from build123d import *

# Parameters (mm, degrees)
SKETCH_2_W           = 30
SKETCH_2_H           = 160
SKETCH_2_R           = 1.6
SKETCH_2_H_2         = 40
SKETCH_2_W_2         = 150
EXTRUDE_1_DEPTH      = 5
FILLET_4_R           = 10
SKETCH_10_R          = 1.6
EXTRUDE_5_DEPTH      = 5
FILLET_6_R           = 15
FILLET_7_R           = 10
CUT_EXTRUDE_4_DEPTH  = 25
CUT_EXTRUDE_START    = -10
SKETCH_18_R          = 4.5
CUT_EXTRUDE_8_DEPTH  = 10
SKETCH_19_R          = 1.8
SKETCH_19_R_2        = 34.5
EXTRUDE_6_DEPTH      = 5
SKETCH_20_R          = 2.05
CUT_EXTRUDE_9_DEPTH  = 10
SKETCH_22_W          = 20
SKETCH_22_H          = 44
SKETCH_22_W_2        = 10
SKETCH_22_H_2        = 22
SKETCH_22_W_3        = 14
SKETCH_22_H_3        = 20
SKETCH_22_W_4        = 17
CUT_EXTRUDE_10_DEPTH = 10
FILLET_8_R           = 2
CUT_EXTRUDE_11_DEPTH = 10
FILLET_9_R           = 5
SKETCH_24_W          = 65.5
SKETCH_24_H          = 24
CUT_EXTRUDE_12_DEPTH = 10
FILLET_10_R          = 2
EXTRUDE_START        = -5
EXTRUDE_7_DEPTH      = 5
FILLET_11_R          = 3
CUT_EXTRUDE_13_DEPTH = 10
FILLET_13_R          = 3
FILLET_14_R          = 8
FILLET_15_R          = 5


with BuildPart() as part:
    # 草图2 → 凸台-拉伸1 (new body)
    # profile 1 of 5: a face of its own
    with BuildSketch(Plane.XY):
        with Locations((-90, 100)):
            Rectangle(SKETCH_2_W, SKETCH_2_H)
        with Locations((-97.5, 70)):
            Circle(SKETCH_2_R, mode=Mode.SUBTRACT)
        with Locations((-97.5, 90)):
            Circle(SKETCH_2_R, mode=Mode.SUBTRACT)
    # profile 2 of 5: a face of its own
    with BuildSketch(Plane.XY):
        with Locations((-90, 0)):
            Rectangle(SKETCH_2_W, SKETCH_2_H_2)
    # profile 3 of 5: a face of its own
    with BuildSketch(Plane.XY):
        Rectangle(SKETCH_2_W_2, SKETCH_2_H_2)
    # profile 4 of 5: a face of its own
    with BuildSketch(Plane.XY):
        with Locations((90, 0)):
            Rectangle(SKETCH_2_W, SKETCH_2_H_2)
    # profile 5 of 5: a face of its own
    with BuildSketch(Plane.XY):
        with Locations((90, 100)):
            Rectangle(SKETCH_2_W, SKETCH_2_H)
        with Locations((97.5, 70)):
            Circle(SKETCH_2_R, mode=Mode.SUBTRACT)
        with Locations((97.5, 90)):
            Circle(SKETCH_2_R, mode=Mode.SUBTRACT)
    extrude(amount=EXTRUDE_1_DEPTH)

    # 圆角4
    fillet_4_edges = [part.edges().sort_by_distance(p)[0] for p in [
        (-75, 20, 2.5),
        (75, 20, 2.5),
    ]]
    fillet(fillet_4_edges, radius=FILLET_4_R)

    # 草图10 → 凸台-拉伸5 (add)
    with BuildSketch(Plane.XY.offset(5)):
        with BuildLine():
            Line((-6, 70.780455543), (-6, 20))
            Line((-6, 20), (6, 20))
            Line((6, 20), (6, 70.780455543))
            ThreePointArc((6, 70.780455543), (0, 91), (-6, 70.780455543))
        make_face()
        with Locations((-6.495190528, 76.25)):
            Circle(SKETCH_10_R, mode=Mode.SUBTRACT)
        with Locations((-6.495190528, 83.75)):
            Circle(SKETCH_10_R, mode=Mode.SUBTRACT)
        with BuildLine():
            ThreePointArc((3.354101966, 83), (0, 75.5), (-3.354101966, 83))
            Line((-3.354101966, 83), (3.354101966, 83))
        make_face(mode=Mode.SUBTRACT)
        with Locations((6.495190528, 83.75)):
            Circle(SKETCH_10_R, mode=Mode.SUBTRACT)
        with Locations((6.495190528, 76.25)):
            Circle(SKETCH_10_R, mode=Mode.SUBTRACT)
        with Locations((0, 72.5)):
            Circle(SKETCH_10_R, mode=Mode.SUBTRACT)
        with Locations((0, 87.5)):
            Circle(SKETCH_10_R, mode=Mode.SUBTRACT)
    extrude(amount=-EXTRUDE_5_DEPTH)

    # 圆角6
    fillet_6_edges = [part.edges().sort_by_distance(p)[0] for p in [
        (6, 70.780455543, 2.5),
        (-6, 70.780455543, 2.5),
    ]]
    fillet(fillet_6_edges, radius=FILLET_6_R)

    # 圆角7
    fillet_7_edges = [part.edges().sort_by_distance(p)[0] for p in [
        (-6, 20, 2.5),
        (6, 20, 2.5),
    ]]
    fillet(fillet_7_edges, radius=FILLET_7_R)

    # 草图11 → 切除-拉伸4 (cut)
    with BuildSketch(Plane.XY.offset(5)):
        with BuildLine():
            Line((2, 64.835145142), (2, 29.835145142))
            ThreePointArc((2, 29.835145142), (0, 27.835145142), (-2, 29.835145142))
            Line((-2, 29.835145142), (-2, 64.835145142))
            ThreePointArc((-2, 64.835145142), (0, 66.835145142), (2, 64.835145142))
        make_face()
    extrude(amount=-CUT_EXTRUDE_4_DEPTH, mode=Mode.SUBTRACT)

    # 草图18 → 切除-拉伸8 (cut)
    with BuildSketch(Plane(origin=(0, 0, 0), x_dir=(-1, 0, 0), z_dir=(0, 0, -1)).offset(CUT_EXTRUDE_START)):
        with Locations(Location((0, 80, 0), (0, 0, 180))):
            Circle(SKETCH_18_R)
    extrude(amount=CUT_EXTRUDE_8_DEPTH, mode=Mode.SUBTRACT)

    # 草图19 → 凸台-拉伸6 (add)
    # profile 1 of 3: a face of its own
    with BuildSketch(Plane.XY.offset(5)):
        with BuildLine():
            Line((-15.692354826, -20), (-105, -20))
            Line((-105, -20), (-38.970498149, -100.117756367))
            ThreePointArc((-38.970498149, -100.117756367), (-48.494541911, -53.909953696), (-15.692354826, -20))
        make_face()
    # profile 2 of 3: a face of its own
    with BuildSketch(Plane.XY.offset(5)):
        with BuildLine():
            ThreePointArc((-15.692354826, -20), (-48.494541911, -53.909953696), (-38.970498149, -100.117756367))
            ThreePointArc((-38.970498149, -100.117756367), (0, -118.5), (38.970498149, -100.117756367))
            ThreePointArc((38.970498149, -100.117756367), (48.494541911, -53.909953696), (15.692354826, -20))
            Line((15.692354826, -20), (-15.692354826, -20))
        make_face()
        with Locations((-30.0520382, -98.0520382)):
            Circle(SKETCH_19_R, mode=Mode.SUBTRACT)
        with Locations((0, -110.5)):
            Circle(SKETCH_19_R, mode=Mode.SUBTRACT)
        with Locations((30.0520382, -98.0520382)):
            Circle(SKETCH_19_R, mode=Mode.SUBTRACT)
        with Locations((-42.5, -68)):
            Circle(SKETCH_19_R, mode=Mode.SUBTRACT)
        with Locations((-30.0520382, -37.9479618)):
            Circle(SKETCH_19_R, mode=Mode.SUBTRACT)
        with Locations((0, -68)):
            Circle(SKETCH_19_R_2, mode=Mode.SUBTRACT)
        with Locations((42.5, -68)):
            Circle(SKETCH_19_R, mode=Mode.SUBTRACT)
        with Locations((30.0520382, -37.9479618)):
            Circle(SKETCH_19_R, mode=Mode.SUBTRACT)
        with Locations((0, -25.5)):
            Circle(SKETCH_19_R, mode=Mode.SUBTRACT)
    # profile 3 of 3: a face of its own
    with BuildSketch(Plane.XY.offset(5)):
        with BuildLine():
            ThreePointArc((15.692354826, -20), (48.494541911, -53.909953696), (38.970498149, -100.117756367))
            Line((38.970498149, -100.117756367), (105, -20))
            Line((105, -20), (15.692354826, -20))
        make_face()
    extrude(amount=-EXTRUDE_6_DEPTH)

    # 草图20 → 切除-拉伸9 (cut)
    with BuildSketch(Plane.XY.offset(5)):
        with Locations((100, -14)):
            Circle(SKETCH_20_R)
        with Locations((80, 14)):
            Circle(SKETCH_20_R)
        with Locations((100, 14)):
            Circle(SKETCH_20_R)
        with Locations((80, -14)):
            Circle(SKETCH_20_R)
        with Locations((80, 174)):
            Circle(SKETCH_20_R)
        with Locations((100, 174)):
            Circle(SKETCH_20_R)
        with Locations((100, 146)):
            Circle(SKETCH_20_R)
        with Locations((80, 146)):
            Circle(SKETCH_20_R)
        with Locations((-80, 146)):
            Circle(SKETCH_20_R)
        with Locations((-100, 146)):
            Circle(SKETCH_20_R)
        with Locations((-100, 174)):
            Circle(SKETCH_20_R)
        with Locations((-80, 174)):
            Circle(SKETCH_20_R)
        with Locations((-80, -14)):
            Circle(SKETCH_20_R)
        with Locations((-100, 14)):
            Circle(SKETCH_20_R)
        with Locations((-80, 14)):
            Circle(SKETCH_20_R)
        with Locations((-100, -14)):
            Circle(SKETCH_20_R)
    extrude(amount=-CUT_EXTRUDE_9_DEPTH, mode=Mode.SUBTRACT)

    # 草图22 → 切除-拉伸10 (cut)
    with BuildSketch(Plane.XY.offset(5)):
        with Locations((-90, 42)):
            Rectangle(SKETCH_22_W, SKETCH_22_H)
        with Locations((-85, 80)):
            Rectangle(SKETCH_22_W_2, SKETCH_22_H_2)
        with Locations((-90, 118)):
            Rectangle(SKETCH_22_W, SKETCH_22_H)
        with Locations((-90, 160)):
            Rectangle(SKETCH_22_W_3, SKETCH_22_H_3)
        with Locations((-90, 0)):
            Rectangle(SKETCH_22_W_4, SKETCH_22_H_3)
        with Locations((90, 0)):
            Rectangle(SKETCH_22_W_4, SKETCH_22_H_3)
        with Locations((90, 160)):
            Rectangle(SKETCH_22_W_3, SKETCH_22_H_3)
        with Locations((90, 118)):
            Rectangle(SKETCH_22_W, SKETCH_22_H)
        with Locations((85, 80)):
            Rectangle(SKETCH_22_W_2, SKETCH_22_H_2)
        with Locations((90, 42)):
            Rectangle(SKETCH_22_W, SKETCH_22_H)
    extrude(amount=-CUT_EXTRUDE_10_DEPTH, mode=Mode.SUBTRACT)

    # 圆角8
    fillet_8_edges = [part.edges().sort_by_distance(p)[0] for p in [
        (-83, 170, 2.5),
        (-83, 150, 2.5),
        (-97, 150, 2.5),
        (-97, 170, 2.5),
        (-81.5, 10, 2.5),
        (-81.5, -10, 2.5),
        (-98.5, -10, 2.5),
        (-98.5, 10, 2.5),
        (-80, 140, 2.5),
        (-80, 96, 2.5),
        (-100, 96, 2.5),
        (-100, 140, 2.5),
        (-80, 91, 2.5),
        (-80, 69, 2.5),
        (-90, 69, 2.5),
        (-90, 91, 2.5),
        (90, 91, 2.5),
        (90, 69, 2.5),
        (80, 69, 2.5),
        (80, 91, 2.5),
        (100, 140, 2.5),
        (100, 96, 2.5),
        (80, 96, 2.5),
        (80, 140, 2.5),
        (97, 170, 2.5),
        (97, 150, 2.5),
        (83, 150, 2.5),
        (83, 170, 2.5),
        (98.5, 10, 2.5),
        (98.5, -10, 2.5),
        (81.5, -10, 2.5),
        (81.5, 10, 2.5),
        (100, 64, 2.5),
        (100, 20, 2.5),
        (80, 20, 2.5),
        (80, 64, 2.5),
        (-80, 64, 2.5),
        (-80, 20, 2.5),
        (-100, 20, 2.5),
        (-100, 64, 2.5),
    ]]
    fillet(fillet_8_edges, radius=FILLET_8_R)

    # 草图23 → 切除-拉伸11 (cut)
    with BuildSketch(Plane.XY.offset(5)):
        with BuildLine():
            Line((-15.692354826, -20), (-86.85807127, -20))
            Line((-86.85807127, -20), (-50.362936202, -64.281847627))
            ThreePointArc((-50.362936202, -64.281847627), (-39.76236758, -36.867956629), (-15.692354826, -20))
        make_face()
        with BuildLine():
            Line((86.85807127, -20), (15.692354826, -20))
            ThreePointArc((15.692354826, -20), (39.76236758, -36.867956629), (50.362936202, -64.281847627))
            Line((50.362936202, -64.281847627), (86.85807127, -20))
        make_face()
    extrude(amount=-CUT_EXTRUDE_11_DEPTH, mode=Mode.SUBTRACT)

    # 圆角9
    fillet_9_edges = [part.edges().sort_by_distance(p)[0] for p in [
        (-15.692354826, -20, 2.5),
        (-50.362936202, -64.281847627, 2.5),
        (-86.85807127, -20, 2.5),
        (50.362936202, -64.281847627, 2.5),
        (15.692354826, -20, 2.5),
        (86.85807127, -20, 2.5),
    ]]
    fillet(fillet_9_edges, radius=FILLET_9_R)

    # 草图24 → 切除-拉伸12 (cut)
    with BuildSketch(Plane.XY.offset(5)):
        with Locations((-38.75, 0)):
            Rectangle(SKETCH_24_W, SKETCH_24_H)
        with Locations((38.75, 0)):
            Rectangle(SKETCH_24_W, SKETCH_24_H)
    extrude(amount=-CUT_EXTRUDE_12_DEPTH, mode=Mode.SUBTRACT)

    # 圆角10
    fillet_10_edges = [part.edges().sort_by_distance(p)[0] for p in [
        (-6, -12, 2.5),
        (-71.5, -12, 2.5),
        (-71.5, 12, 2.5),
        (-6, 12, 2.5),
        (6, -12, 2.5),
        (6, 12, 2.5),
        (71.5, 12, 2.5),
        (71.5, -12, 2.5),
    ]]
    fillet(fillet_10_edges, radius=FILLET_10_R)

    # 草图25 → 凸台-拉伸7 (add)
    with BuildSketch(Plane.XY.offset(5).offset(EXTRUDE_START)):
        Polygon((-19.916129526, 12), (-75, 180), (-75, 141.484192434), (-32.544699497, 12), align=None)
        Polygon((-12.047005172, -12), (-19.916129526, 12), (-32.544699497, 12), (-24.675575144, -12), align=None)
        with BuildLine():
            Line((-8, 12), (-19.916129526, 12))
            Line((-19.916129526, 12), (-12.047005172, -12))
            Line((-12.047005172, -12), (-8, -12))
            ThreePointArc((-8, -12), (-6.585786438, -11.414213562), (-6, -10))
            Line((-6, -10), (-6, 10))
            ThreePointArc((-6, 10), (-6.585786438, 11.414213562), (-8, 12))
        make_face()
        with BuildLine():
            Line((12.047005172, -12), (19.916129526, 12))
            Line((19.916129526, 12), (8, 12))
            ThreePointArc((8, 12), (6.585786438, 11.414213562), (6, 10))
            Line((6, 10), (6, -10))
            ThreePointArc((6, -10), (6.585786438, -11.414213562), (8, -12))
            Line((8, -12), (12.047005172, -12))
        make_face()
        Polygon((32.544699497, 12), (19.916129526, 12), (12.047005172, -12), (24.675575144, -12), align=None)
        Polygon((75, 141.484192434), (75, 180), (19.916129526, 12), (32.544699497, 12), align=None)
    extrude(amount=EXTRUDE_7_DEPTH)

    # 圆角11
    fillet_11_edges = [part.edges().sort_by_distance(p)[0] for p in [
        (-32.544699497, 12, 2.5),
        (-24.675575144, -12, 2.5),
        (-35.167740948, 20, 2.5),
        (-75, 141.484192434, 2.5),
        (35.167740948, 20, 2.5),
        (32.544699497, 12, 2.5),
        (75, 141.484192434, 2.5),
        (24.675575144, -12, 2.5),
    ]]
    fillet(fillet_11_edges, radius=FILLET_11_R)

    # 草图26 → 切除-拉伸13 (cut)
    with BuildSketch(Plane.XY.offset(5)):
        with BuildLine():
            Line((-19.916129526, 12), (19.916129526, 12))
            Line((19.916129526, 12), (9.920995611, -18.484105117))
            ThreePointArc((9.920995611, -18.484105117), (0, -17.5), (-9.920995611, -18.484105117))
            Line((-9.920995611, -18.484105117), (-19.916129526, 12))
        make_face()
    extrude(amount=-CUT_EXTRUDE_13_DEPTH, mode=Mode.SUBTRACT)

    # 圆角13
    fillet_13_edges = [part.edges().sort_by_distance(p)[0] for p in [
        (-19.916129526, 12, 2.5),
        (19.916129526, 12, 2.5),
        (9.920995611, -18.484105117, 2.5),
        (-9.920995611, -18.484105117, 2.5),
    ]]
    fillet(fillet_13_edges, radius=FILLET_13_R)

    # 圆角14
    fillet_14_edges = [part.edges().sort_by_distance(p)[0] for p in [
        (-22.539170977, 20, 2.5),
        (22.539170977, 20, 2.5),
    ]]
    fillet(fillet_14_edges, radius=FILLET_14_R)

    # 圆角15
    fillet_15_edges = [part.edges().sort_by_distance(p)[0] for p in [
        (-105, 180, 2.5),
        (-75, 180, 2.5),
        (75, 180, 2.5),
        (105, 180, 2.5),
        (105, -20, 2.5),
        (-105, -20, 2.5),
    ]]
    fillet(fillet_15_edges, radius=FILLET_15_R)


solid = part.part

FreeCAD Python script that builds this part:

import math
import FreeCAD as App
import Part
import Sketcher
from FreeCAD import Vector
Q = App.Units.Quantity


def edges_at(feature, points):
    """Names of the edges that pass closest to the given points."""
    edges = feature.Shape.Edges
    near = lambda p: min(range(len(edges)), key=lambda i: edges[i].distToShape(Part.Vertex(*p))[0])
    return sorted({f"Edge{near(p) + 1}" for p in points})


def add_polygon(sketch, points):
    """Adds a closed chain of lines whose ends are joined by coincident constraints."""
    first, n = sketch.GeometryCount, len(points)
    for a, b in zip(points, points[1:] + points[:1]):
        sketch.addGeometry(Part.LineSegment(App.Vector(*a, 0), App.Vector(*b, 0)), False)
    for i in range(n):
        sketch.addConstraint(Sketcher.Constraint("Coincident", first + i, 2, first + (i + 1) % n, 1))

doc = App.newDocument("Part")
body = doc.addObject("PartDesign::Body", "Body")

# Sketch on XY plane
sketch1 = body.newObject("Sketcher::SketchObject", "Sketch")
sketch1.AttachmentSupport = (doc.getObject("XY_Plane"), [""])
sketch1.MapMode = "FlatFace"
add_polygon(sketch1, [(-105, 180), (-105, -20), (105, -20), (105, 180), (75, 180), (75, 20), (-75, 20), (-75, 180)])  # lines 0-7
sketch1.addGeometry(Part.Circle(Vector(-97.5, 70, 0), Vector(0, 0, 1), 1.6), False)  # 8
sketch1.addGeometry(Part.Circle(Vector(-97.5, 90, 0), Vector(0, 0, 1), 1.6), False)  # 9
sketch1.addGeometry(Part.Circle(Vector(97.5, 90, 0), Vector(0, 0, 1), 1.6), False)  # 10
sketch1.addGeometry(Part.Circle(Vector(97.5, 70, 0), Vector(0, 0, 1), 1.6), False)  # 11
sketch1.addConstraint([
    Sketcher.Constraint("Vertical", 0),
    Sketcher.Constraint("Horizontal", 1),
    Sketcher.Constraint("Vertical", 2),
    Sketcher.Constraint("Horizontal", 3),
    Sketcher.Constraint("Vertical", 4),
    Sketcher.Constraint("Horizontal", 5),
    Sketcher.Constraint("Vertical", 6),
    Sketcher.Constraint("Horizontal", 7),
    Sketcher.Constraint("Equal", 8, 9),
    Sketcher.Constraint("Equal", 9, 10),
    Sketcher.Constraint("Equal", 10, 11),
    Sketcher.Constraint("Symmetric", 9, 3, 10, 3, -2),
    Sketcher.Constraint("Symmetric", 8, 3, 11, 3, -2),
    Sketcher.Constraint("Symmetric", 3, 2, 6, 2, -2),
    Sketcher.Constraint("Vertical", 8, 3, 9, 3),
    Sketcher.Constraint("Equal", 3, 7),
    Sketcher.Constraint("Diameter", 8, Q("3.2 mm")),
    Sketcher.Constraint("DistanceX", 1, 1, 1, 2, Q("210 mm")),
    Sketcher.Constraint("DistanceX", 3, 2, 3, 1, Q("30 mm")),
    Sketcher.Constraint("DistanceY", 0, 2, 0, 1, Q("200 mm")),
    Sketcher.Constraint("DistanceY", 4, 2, 4, 1, Q("160 mm")),
    Sketcher.Constraint("DistanceY", -1, 1, 8, 3, Q("70 mm")),
    Sketcher.Constraint("DistanceY", -1, 1, 9, 3, Q("90 mm")),
    Sketcher.Constraint("DistanceY", 0, 2, -1, 1, Q("20 mm")),
    Sketcher.Constraint("DistanceX", 9, 3, 10, 3, Q("195 mm")),
])
pad1 = body.newObject("PartDesign::Pad", "Pad")
pad1.Profile = sketch1
pad1.Length = 5
doc.recompute()

fillet = body.newObject("PartDesign::Fillet", "Fillet")
fillet.Base = (pad1, edges_at(pad1, [(-75, 20, 2.5), (75, 20, 2.5)]))
fillet.Radius = 10

# Sketch on XY plane
sketch2 = body.newObject("Sketcher::SketchObject", "Sketch001")
sketch2.AttachmentSupport = (doc.getObject("XY_Plane"), [""])
sketch2.MapMode = "FlatFace"
sketch2.AttachmentOffset = App.Placement(Vector(0, 0, 5), App.Rotation())
sketch2.addGeometry([
    Part.LineSegment(Vector(-6, 70.780456, 0), Vector(-6, 20, 0)),  # 0
    Part.LineSegment(Vector(-6, 20, 0), Vector(6, 20, 0)),  # 1
    Part.LineSegment(Vector(6, 20, 0), Vector(6, 70.780456, 0)),  # 2
    Part.ArcOfCircle(Part.Circle(Vector(0, 80, 0), Vector(0, 0, 1), 11), math.radians(-56.944269), math.radians(236.944269)),  # 3
    Part.Circle(Vector(-6.495191, 76.25, 0), Vector(0, 0, 1), 1.6),  # 4
    Part.Circle(Vector(0, 72.5, 0), Vector(0, 0, 1), 1.6),  # 5
    Part.LineSegment(Vector(-3.354102, 83, 0), Vector(3.354102, 83, 0)),  # 6
    Part.ArcOfCircle(Part.Circle(Vector(0, 80, 0), Vector(0, 0, 1), 4.5), math.radians(138.189685), math.radians(401.810315)),  # 7
    Part.Circle(Vector(6.495191, 76.25, 0), Vector(0, 0, 1), 1.6),  # 8
    Part.Circle(Vector(-6.495191, 83.75, 0), Vector(0, 0, 1), 1.6),  # 9
    Part.Circle(Vector(6.495191, 83.75, 0), Vector(0, 0, 1), 1.6),  # 10
    Part.Circle(Vector(0, 87.5, 0), Vector(0, 0, 1), 1.6),  # 11
], False)
sketch2.addConstraint([
    Sketcher.Constraint("Coincident", 0, 2, 1, 1),
    Sketcher.Constraint("Coincident", 1, 2, 2, 1),
    Sketcher.Constraint("Coincident", 2, 2, 3, 1),
    Sketcher.Constraint("Coincident", 3, 2, 0, 1),
    Sketcher.Constraint("Coincident", 6, 1, 7, 1),
    Sketcher.Constraint("Coincident", 7, 2, 6, 2),
    Sketcher.Constraint("Vertical", 0),
    Sketcher.Constraint("Horizontal", 1),
    Sketcher.Constraint("Vertical", 2),
    Sketcher.Constraint("Horizontal", 6),
    Sketcher.Constraint("Coincident", 7, 3, 3, 3),
    Sketcher.Constraint("Equal", 4, 5),
    Sketcher.Constraint("Equal", 5, 8),
    Sketcher.Constraint("Equal", 8, 9),
    Sketcher.Constraint("Equal", 9, 10),
    Sketcher.Constraint("Equal", 10, 11),
    Sketcher.Constraint("Symmetric", 4, 3, 8, 3, -2),
    Sketcher.Constraint("Symmetric", 9, 3, 10, 3, -2),
    Sketcher.Constraint("Symmetric", 2, 2, 3, 2, -2),
    Sketcher.Constraint("PointOnObject", 5, 3, -2),
    Sketcher.Constraint("PointOnObject", 11, 3, -2),
    Sketcher.Constraint("Vertical", 4, 3, 9, 3),
    Sketcher.Constraint("Radius", 3, Q("11 mm")),
    Sketcher.Constraint("Diameter", 4, Q("3.2 mm")),
    Sketcher.Constraint("Radius", 7, Q("4.5 mm")),
    Sketcher.Constraint("DistanceX", 1, 1, 1, 2, Q("12 mm")),
    Sketcher.Constraint("DistanceY", -1, 1, 3, 3, Q("80 mm")),
    Sketcher.Constraint("DistanceY", -1, 1, 0, 2, Q("20 mm")),
    Sketcher.Constraint("DistanceY", -1, 1, 6, 1, Q("83 mm")),
    Sketcher.Constraint("DistanceY", -1, 1, 5, 3, Q("72.5 mm")),
    Sketcher.Constraint("DistanceY", -1, 1, 11, 3, Q("87.5 mm")),
    Sketcher.Constraint("DistanceY", 4, 3, 9, 3, Q("7.5 mm")),
    Sketcher.Constraint("DistanceY", -1, 1, 4, 3, Q("76.25 mm")),
    Sketcher.Constraint("DistanceX", 4, 3, -1, 1, Q("6.495191 mm")),
])
pad2 = body.newObject("PartDesign::Pad", "Pad001")
pad2.Profile = sketch2
pad2.Length = 5
pad2.Reversed = True
doc.recompute()

fillet2 = body.newObject("PartDesign::Fillet", "Fillet001")
fillet2.Base = (pad2, edges_at(pad2, [(6, 70.78, 2.5), (-6, 70.78, 2.5)]))
fillet2.Radius = 15
doc.recompute()

fillet3 = body.newObject("PartDesign::Fillet", "Fillet002")
fillet3.Base = (fillet2, edges_at(fillet2, [(-6, 20, 2.5), (6, 20, 2.5)]))
fillet3.Radius = 10

# Sketch on XY plane
sketch3 = body.newObject("Sketcher::SketchObject", "Sketch002")
sketch3.AttachmentSupport = (doc.getObject("XY_Plane"), [""])
sketch3.MapMode = "FlatFace"
sketch3.AttachmentOffset = App.Placement(Vector(0, 0, 5), App.Rotation())
sketch3.addGeometry([
    Part.LineSegment(Vector(2, 29.835145, 0), Vector(2, 64.835145, 0)),
    Part.ArcOfCircle(Part.Circle(Vector(0, 64.835145, 0), Vector(0, 0, 1), 2), math.radians(0), math.radians(180)),
    Part.LineSegment(Vector(-2, 64.835145, 0), Vector(-2, 29.835145, 0)),
    Part.ArcOfCircle(Part.Circle(Vector(0, 29.835145, 0), Vector(0, 0, 1), 2), math.radians(180), math.radians(360)),
], False)
sketch3.addConstraint([
    Sketcher.Constraint("Tangent", 0, 2, 1, 1),
    Sketcher.Constraint("Tangent", 1, 2, 2, 1),
    Sketcher.Constraint("Tangent", 2, 2, 3, 1),
    Sketcher.Constraint("Tangent", 3, 2, 0, 1),
    Sketcher.Constraint("Vertical", 0),
    Sketcher.Constraint("Vertical", 2),
    Sketcher.Constraint("PointOnObject", 1, 3, -2),
    Sketcher.Constraint("Radius", 1, Q("2 mm")),
    Sketcher.Constraint("DistanceY", 0, 1, 0, 2, Q("35 mm")),
    Sketcher.Constraint("DistanceY", -1, 1, 1, 3, Q("64.835145 mm")),
])
pocket1 = body.newObject("PartDesign::Pocket", "Pocket")
pocket1.Profile = sketch3
pocket1.Length = 25

# Sketch on XY plane
sketch4 = body.newObject("Sketcher::SketchObject", "Sketch003")
sketch4.AttachmentSupport = (doc.getObject("XY_Plane"), [""])
sketch4.MapMode = "FlatFace"
sketch4.AttachmentOffset = App.Placement(Vector(0, 0, 10), App.Rotation())
sketch4.addGeometry(Part.Circle(Vector(0, 80, 0), Vector(0, 0, 1), 4.5), False)
sketch4.addConstraint([
    Sketcher.Constraint("PointOnObject", 0, 3, -2),
    Sketcher.Constraint("Diameter", 0, Q("9 mm")),
    Sketcher.Constraint("DistanceY", -1, 1, 0, 3, Q("80 mm")),
])
pocket2 = body.newObject("PartDesign::Pocket", "Pocket001")
pocket2.Profile = sketch4
pocket2.Length = 10

# Sketch on XY plane
sketch5 = body.newObject("Sketcher::SketchObject", "Sketch004")
sketch5.AttachmentSupport = (doc.getObject("XY_Plane"), [""])
sketch5.MapMode = "FlatFace"
sketch5.AttachmentOffset = App.Placement(Vector(0, 0, 5), App.Rotation())
sketch5.addGeometry([
    Part.LineSegment(Vector(-105, -20, 0), Vector(-38.970498, -100.117756, 0)),  # 0
    Part.ArcOfCircle(Part.Circle(Vector(0, -68, 0), Vector(0, 0, 1), 50.5), math.radians(-140.506166), math.radians(-39.493834)),  # 1
    Part.LineSegment(Vector(38.970498, -100.117756, 0), Vector(105, -20, 0)),  # 2
    Part.LineSegment(Vector(105, -20, 0), Vector(-105, -20, 0)),  # 3
    Part.Circle(Vector(30.052038, -37.947962, 0), Vector(0, 0, 1), 1.8),  # 4
    Part.Circle(Vector(-30.052038, -98.052038, 0), Vector(0, 0, 1), 1.8),  # 5
    Part.Circle(Vector(0, -110.5, 0), Vector(0, 0, 1), 1.8),  # 6
    Part.Circle(Vector(30.052038, -98.052038, 0), Vector(0, 0, 1), 1.8),  # 7
    Part.Circle(Vector(-42.5, -68, 0), Vector(0, 0, 1), 1.8),  # 8
    Part.Circle(Vector(-30.052038, -37.947962, 0), Vector(0, 0, 1), 1.8),  # 9
    Part.Circle(Vector(0, -68, 0), Vector(0, 0, 1), 34.5),  # 10
    Part.Circle(Vector(42.5, -68, 0), Vector(0, 0, 1), 1.8),  # 11
    Part.Circle(Vector(0, -25.5, 0), Vector(0, 0, 1), 1.8),  # 12
], False)
sketch5.addConstraint([
    Sketcher.Constraint("Tangent", 0, 2, 1, 1),
    Sketcher.Constraint("Tangent", 1, 2, 2, 1),
    Sketcher.Constraint("Coincident", 2, 2, 3, 1),
    Sketcher.Constraint("Coincident", 3, 2, 0, 1),
    Sketcher.Constraint("Horizontal", 3),
    Sketcher.Constraint("Coincident", 10, 3, 1, 3),
    Sketcher.Constraint("Equal", 4, 5),
    Sketcher.Constraint("Equal", 5, 6),
    Sketcher.Constraint("Equal", 6, 7),
    Sketcher.Constraint("Equal", 7, 8),
    Sketcher.Constraint("Equal", 8, 9),
    Sketcher.Constraint("Equal", 9, 11),
    Sketcher.Constraint("Equal", 11, 12),
    Sketcher.Constraint("Symmetric", 5, 3, 7, 3, -2),
    Sketcher.Constraint("Symmetric", 4, 3, 9, 3, -2),
    Sketcher.Constraint("Symmetric", 8, 3, 11, 3, -2),
    Sketcher.Constraint("Symmetric", 0, 2, 1, 2, -2),
    Sketcher.Constraint("PointOnObject", 6, 3, -2),
    Sketcher.Constraint("PointOnObject", 12, 3, -2),
    Sketcher.Constraint("Horizontal", 1, 3, 8, 3),
    Sketcher.Constraint("Vertical", 4, 3, 7, 3),
    Sketcher.Constraint("Diameter", 10, Q("69 mm")),
    Sketcher.Constraint("Diameter", 4, Q("3.6 mm")),
    Sketcher.Constraint("Radius", 1, Q("50.5 mm")),
    Sketcher.Constraint("DistanceX", 3, 2, 3, 1, Q("210 mm")),
    Sketcher.Constraint("DistanceY", 1, 3, -1, 1, Q("68 mm")),
    Sketcher.Constraint("DistanceY", 2, 2, -1, 1, Q("20 mm")),
    Sketcher.Constraint("DistanceY", 6, 3, -1, 1, Q("110.5 mm")),
    Sketcher.Constraint("DistanceX", 8, 3, -1, 1, Q("42.5 mm")),
    Sketcher.Constraint("DistanceY", 12, 3, -1, 1, Q("25.5 mm")),
    Sketcher.Constraint("DistanceX", -1, 1, 4, 3, Q("30.052038 mm")),
    Sketcher.Constraint("DistanceY", 4, 3, -1, 1, Q("37.947962 mm")),
    Sketcher.Constraint("DistanceY", 5, 3, -1, 1, Q("98.052038 mm")),
])
pad3 = body.newObject("PartDesign::Pad", "Pad002")
pad3.Profile = sketch5
pad3.Length = 5
pad3.Reversed = True

# Sketch on XY plane
sketch6 = body.newObject("Sketcher::SketchObject", "Sketch005")
sketch6.AttachmentSupport = (doc.getObject("XY_Plane"), [""])
sketch6.MapMode = "FlatFace"
sketch6.AttachmentOffset = App.Placement(Vector(0, 0, 5), App.Rotation())
sketch6.addGeometry([
    Part.Circle(Vector(100, -14, 0), Vector(0, 0, 1), 2.05),  # 0
    Part.Circle(Vector(80, 14, 0), Vector(0, 0, 1), 2.05),  # 1
    Part.Circle(Vector(100, 14, 0), Vector(0, 0, 1), 2.05),  # 2
    Part.Circle(Vector(80, -14, 0), Vector(0, 0, 1), 2.05),  # 3
    Part.Circle(Vector(80, 174, 0), Vector(0, 0, 1), 2.05),  # 4
    Part.Circle(Vector(100, 174, 0), Vector(0, 0, 1), 2.05),  # 5
    Part.Circle(Vector(100, 146, 0), Vector(0, 0, 1), 2.05),  # 6
    Part.Circle(Vector(80, 146, 0), Vector(0, 0, 1), 2.05),  # 7
    Part.Circle(Vector(-80, 146, 0), Vector(0, 0, 1), 2.05),  # 8
    Part.Circle(Vector(-100, 146, 0), Vector(0, 0, 1), 2.05),  # 9
    Part.Circle(Vector(-100, 174, 0), Vector(0, 0, 1), 2.05),  # 10
    Part.Circle(Vector(-80, 174, 0), Vector(0, 0, 1), 2.05),  # 11
    Part.Circle(Vector(-80, -14, 0), Vector(0, 0, 1), 2.05),  # 12
    Part.Circle(Vector(-100, 14, 0), Vector(0, 0, 1), 2.05),  # 13
    Part.Circle(Vector(-80, 14, 0), Vector(0, 0, 1), 2.05),  # 14
    Part.Circle(Vector(-100, -14, 0), Vector(0, 0, 1), 2.05),  # 15
], False)
sketch6.addConstraint([
    Sketcher.Constraint("Equal", 0, 1),
    Sketcher.Constraint("Equal", 1, 2),
    Sketcher.Constraint("Equal", 2, 3),
    Sketcher.Constraint("Equal", 3, 4),
    Sketcher.Constraint("Equal", 4, 5),
    Sketcher.Constraint("Equal", 5, 6),
    Sketcher.Constraint("Equal", 6, 7),
    Sketcher.Constraint("Equal", 7, 8),
    Sketcher.Constraint("Equal", 8, 9),
    Sketcher.Constraint("Equal", 9, 10),
    Sketcher.Constraint("Equal", 10, 11),
    Sketcher.Constraint("Equal", 11, 12),
    Sketcher.Constraint("Equal", 12, 13),
    Sketcher.Constraint("Equal", 13, 14),
    Sketcher.Constraint("Equal", 14, 15),
    Sketcher.Constraint("Symmetric", 1, 3, 12, 3, -1, 1),
    Sketcher.Constraint("Symmetric", 0, 3, 13, 3, -1, 1),
    Sketcher.Constraint("Symmetric", 3, 3, 14, 3, -1, 1),
    Sketcher.Constraint("Symmetric", 2, 3, 15, 3, -1, 1),
    Sketcher.Constraint("Symmetric", 7, 3, 8, 3, -2),
    Sketcher.Constraint("Symmetric", 6, 3, 9, 3, -2),
    Sketcher.Constraint("Symmetric", 5, 3, 10, 3, -2),
    Sketcher.Constraint("Symmetric", 4, 3, 11, 3, -2),
    Sketcher.Constraint("Symmetric", 3, 3, 12, 3, -2),
    Sketcher.Constraint("Symmetric", 2, 3, 13, 3, -2),
    Sketcher.Constraint("Horizontal", 1, 3, 2, 3),
    Sketcher.Constraint("Horizontal", 4, 3, 5, 3),
    Sketcher.Constraint("Horizontal", 6, 3, 7, 3),
    Sketcher.Constraint("Vertical", 3, 3, 4, 3),
    Sketcher.Constraint("Vertical", 2, 3, 5, 3),
    Sketcher.Constraint("Vertical", 5, 3, 6, 3),
    Sketcher.Constraint("Vertical", 4, 3, 7, 3),
    Sketcher.Constraint("Diameter", 0, Q("4.1 mm")),
    Sketcher.Constraint("DistanceX", -1, 1, 0, 3, Q("100 mm")),
    Sketcher.Constraint("DistanceY", 0, 3, -1, 1, Q("14 mm")),
    Sketcher.Constraint("DistanceX", -1, 1, 1, 3, Q("80 mm")),
    Sketcher.Constraint("DistanceY", -1, 1, 4, 3, Q("174 mm")),
    Sketcher.Constraint("DistanceY", -1, 1, 6, 3, Q("146 mm")),
])
pocket3 = body.newObject("PartDesign::Pocket", "Pocket002")
pocket3.Profile = sketch6
pocket3.Length = 10

# Sketch on XY plane
sketch7 = body.newObject("Sketcher::SketchObject", "Sketch006")
sketch7.AttachmentSupport = (doc.getObject("XY_Plane"), [""])
sketch7.MapMode = "FlatFace"
sketch7.AttachmentOffset = App.Placement(Vector(0, 0, 5), App.Rotation())
add_polygon(sketch7, [(-100, 64), (-100, 20), (-80, 20), (-80, 64)])  # lines 0-3
add_polygon(sketch7, [(-90, 91), (-90, 69), (-80, 69), (-80, 91)])  # lines 4-7
add_polygon(sketch7, [(-100, 140), (-100, 96), (-80, 96), (-80, 140)])  # lines 8-11
add_polygon(sketch7, [(-97, 170), (-97, 150), (-83, 150), (-83, 170)])  # lines 12-15
add_polygon(sketch7, [(-98.5, 10), (-98.5, -10), (-81.5, -10), (-81.5, 10)])  # lines 16-19
add_polygon(sketch7, [(81.5, 10), (81.5, -10), (98.5, -10), (98.5, 10)])  # lines 20-23
add_polygon(sketch7, [(83, 170), (83, 150), (97, 150), (97, 170)])  # lines 24-27
add_polygon(sketch7, [(80, 140), (80, 96), (100, 96), (100, 140)])  # lines 28-31
add_polygon(sketch7, [(80, 91), (80, 69), (90, 69), (90, 91)])  # lines 32-35
add_polygon(sketch7, [(80, 64), (80, 20), (100, 20), (100, 64)])  # lines 36-39
sketch7.addConstraint([
    Sketcher.Constraint("Vertical", 0),
    Sketcher.Constraint("Horizontal", 1),
    Sketcher.Constraint("Vertical", 2),
    Sketcher.Constraint("Horizontal", 3),
    Sketcher.Constraint("Vertical", 4),
    Sketcher.Constraint("Horizontal", 5),
    Sketcher.Constraint("Vertical", 6),
    Sketcher.Constraint("Horizontal", 7),
    Sketcher.Constraint("Vertical", 8),
    Sketcher.Constraint("Horizontal", 9),
    Sketcher.Constraint("Vertical", 10),
    Sketcher.Constraint("Horizontal", 11),
    Sketcher.Constraint("Vertical", 12),
    Sketcher.Constraint("Horizontal", 13),
    Sketcher.Constraint("Vertical", 14),
    Sketcher.Constraint("Horizontal", 15),
    Sketcher.Constraint("Vertical", 16),
    Sketcher.Constraint("Horizontal", 17),
    Sketcher.Constraint("Vertical", 18),
    Sketcher.Constraint("Horizontal", 19),
    Sketcher.Constraint("Vertical", 20),
    Sketcher.Constraint("Horizontal", 21),
    Sketcher.Constraint("Vertical", 22),
    Sketcher.Constraint("Horizontal", 23),
    Sketcher.Constraint("Vertical", 24),
    Sketcher.Constraint("Horizontal", 25),
    Sketcher.Constraint("Vertical", 26),
    Sketcher.Constraint("Horizontal", 27),
    Sketcher.Constraint("Vertical", 28),
    Sketcher.Constraint("Horizontal", 29),
    Sketcher.Constraint("Vertical", 30),
    Sketcher.Constraint("Horizontal", 31),
    Sketcher.Constraint("Vertical", 32),
    Sketcher.Constraint("Horizontal", 33),
    Sketcher.Constraint("Vertical", 34),
    Sketcher.Constraint("Horizontal", 35),
    Sketcher.Constraint("Vertical", 36),
    Sketcher.Constraint("Horizontal", 37),
    Sketcher.Constraint("Vertical", 38),
    Sketcher.Constraint("Horizontal", 39),
    Sketcher.Constraint("Symmetric", 18, 2, 20, 2, -1, 1),
    Sketcher.Constraint("Symmetric", 16, 2, 22, 2, -1, 1),
    Sketcher.Constraint("Symmetric", 13, 2, 24, 2, -2),
    Sketcher.Constraint("Symmetric", 15, 2, 26, 2, -2),
    Sketcher.Constraint("Symmetric", 9, 2, 28, 2, -2),
    Sketcher.Constraint("Symmetric", 11, 2, 30, 2, -2),
    Sketcher.Constraint("Symmetric", 5, 2, 32, 2, -2),
    Sketcher.Constraint("Symmetric", 7, 2, 34, 2, -2),
    Sketcher.Constraint("Symmetric", 1, 2, 36, 2, -2),
    Sketcher.Constraint("Symmetric", 3, 2, 38, 2, -2),
    Sketcher.Constraint("Horizontal", 17, 2, 20, 2),
    Sketcher.Constraint("Vertical", 2, 2, 5, 2),
    Sketcher.Constraint("Vertical", 3, 2, 8, 2),
    Sketcher.Constraint("Vertical", 6, 2, 9, 2),
    Sketcher.Constraint("Equal", 2, 8),
    Sketcher.Constraint("Equal", 39, 12),
    Sketcher.Constraint("Equal", 14, 16),
    Sketcher.Constraint("DistanceX", 1, 1, 1, 2, Q("20 mm")),
    Sketcher.Constraint("DistanceX", 5, 1, 5, 2, Q("10 mm")),
    Sketcher.Constraint("DistanceX", 13, 1, 13, 2, Q("14 mm")),
    Sketcher.Constraint("DistanceX", 17, 1, 17, 2, Q("17 mm")),
    Sketcher.Constraint("DistanceY", 0, 2, 0, 1, Q("44 mm")),
    Sketcher.Constraint("DistanceY", 4, 2, 4, 1, Q("22 mm")),
    Sketcher.Constraint("DistanceX", 0, 2, -1, 1, Q("100 mm")),
    Sketcher.Constraint("DistanceY", -1, 1, 0, 2, Q("20 mm")),
    Sketcher.Constraint("DistanceY", -1, 1, 4, 2, Q("69 mm")),
    Sketcher.Constraint("DistanceY", -1, 1, 8, 2, Q("96 mm")),
    Sketcher.Constraint("DistanceX", 12, 2, -1, 1, Q("97 mm")),
    Sketcher.Constraint("DistanceY", -1, 1, 12, 2, Q("150 mm")),
    Sketcher.Constraint("DistanceX", 17, 2, 20, 2, Q("163 mm")),
])
pocket4 = body.newObject("PartDesign::Pocket", "Pocket003")
pocket4.Profile = sketch7
pocket4.Length = 10
doc.recompute()

fillet4 = body.newObject("PartDesign::Fillet", "Fillet003")
fillet4.Base = (pocket4, edges_at(pocket4, [
    (-83, 170, 2.5),
    (-83, 150, 2.5),
    (-97, 150, 2.5),
    (-97, 170, 2.5),
    (-81.5, 10, 2.5),
    (-81.5, -10, 2.5),
    (-98.5, -10, 2.5),
    (-98.5, 10, 2.5),
    (-80, 140, 2.5),
    (-80, 96, 2.5),
    (-100, 96, 2.5),
    (-100, 140, 2.5),
    (-80, 91, 2.5),
    (-80, 69, 2.5),
    (-90, 69, 2.5),
    (-90, 91, 2.5),
    (90, 91, 2.5),
    (90, 69, 2.5),
    (80, 69, 2.5),
    (80, 91, 2.5),
    (100, 140, 2.5),
    (100, 96, 2.5),
    (80, 96, 2.5),
    (80, 140, 2.5),
    (97, 170, 2.5),
    (97, 150, 2.5),
    (83, 150, 2.5),
    (83, 170, 2.5),
    (98.5, 10, 2.5),
    (98.5, -10, 2.5),
    (81.5, -10, 2.5),
    (81.5, 10, 2.5),
    (100, 64, 2.5),
    (100, 20, 2.5),
    (80, 20, 2.5),
    (80, 64, 2.5),
    (-80, 64, 2.5),
    (-80, 20, 2.5),
    (-100, 20, 2.5),
    (-100, 64, 2.5),
]))
fillet4.Radius = 2

# Sketch on XY plane
sketch8 = body.newObject("Sketcher::SketchObject", "Sketch007")
sketch8.AttachmentSupport = (doc.getObject("XY_Plane"), [""])
sketch8.MapMode = "FlatFace"
sketch8.AttachmentOffset = App.Placement(Vector(0, 0, 5), App.Rotation())
sketch8.addGeometry([
    Part.LineSegment(Vector(-15.692355, -20, 0), Vector(-86.858071, -20, 0)),  # 0
    Part.LineSegment(Vector(-86.858071, -20, 0), Vector(-50.362936, -64.281848, 0)),  # 1
    Part.ArcOfCircle(Part.Circle(Vector(0, -68, 0), Vector(0, 0, 1), 50.5), math.radians(108.103814), math.radians(175.777676)),  # 2
    Part.LineSegment(Vector(86.858071, -20, 0), Vector(15.692355, -20, 0)),  # 3
    Part.ArcOfCircle(Part.Circle(Vector(0, -68, 0), Vector(0, 0, 1), 50.5), math.radians(4.222324), math.radians(71.896186)),  # 4
    Part.LineSegment(Vector(50.362936, -64.281848, 0), Vector(86.858071, -20, 0)),  # 5
], False)
sketch8.addConstraint([
    Sketcher.Constraint("Coincident", 0, 2, 1, 1),
    Sketcher.Constraint("Coincident", 1, 2, 2, 2),
    Sketcher.Constraint("Coincident", 2, 1, 0, 1),
    Sketcher.Constraint("Coincident", 3, 2, 4, 2),
    Sketcher.Constraint("Coincident", 4, 1, 5, 1),
    Sketcher.Constraint("Coincident", 5, 2, 3, 1),
    Sketcher.Constraint("Horizontal", 0),
    Sketcher.Constraint("Horizontal", 3),
    Sketcher.Constraint("Coincident", 4, 3, 2, 3),
    Sketcher.Constraint("Equal", 2, 4),
    Sketcher.Constraint("Symmetric", 2, 1, 3, 2, -2),
    Sketcher.Constraint("Horizontal", 1, 2, 4, 1),
    Sketcher.Constraint("Equal", 0, 3),
    Sketcher.Constraint("Radius", 2, Q("50.5 mm")),
    Sketcher.Constraint("DistanceY", 2, 3, -1, 1, Q("68 mm")),
    Sketcher.Constraint("DistanceY", 0, 2, -1, 1, Q("20 mm")),
    Sketcher.Constraint("DistanceX", 0, 2, 0, 1, Q("71.165716 mm")),
    Sketcher.Constraint("DistanceX", 1, 2, 3, 2, Q("66.055291 mm")),
])
pocket5 = body.newObject("PartDesign::Pocket", "Pocket004")
pocket5.Profile = sketch8
pocket5.Length = 10
doc.recompute()

fillet5 = body.newObject("PartDesign::Fillet", "Fillet004")
fillet5.Base = (pocket5, edges_at(pocket5, [
    (-15.692, -20, 2.5),
    (-50.363, -64.282, 2.5),
    (-86.858, -20, 2.5),
    (50.363, -64.282, 2.5),
    (15.692, -20, 2.5),
    (86.858, -20, 2.5),
]))
fillet5.Radius = 5

# Sketch on XY plane
sketch9 = body.newObject("Sketcher::SketchObject", "Sketch008")
sketch9.AttachmentSupport = (doc.getObject("XY_Plane"), [""])
sketch9.MapMode = "FlatFace"
sketch9.AttachmentOffset = App.Placement(Vector(0, 0, 5), App.Rotation())
add_polygon(sketch9, [(-71.5, 12), (-71.5, -12), (-6, -12), (-6, 12)])  # lines 0-3
add_polygon(sketch9, [(6, 12), (6, -12), (71.5, -12), (71.5, 12)])  # lines 4-7
sketch9.addConstraint([
    Sketcher.Constraint("Vertical", 0),
    Sketcher.Constraint("Horizontal", 1),
    Sketcher.Constraint("Vertical", 2),
    Sketcher.Constraint("Horizontal", 3),
    Sketcher.Constraint("Vertical", 4),
    Sketcher.Constraint("Horizontal", 5),
    Sketcher.Constraint("Vertical", 6),
    Sketcher.Constraint("Horizontal", 7),
    Sketcher.Constraint("Symmetric", 2, 2, 4, 2, -1, 1),
    Sketcher.Constraint("Symmetric", 0, 2, 6, 2, -1, 1),
    Sketcher.Constraint("Horizontal", 1, 2, 4, 2),
    Sketcher.Constraint("DistanceY", 0, 2, 0, 1, Q("24 mm")),
    Sketcher.Constraint("DistanceX", 1, 1, 1, 2, Q("65.5 mm")),
    Sketcher.Constraint("DistanceX", 1, 2, -1, 1, Q("6 mm")),
])
pocket6 = body.newObject("PartDesign::Pocket", "Pocket005")
pocket6.Profile = sketch9
pocket6.Length = 10
doc.recompute()

fillet6 = body.newObject("PartDesign::Fillet", "Fillet005")
fillet6.Base = (pocket6, edges_at(pocket6, [
    (-6, -12, 2.5),
    (-71.5, -12, 2.5),
    (-71.5, 12, 2.5),
    (-6, 12, 2.5),
    (6, -12, 2.5),
    (6, 12, 2.5),
    (71.5, 12, 2.5),
    (71.5, -12, 2.5),
]))
fillet6.Radius = 2

# Sketch on XY plane
sketch10 = body.newObject("Sketcher::SketchObject", "Sketch009")
sketch10.AttachmentSupport = (doc.getObject("XY_Plane"), [""])
sketch10.MapMode = "FlatFace"
sketch10.addGeometry([
    Part.LineSegment(Vector(-19.91613, 12, 0), Vector(-75, 180, 0)),  # 0
    Part.LineSegment(Vector(-75, 180, 0), Vector(-75, 141.484192, 0)),  # 1
    Part.LineSegment(Vector(-75, 141.484192, 0), Vector(-32.544699, 12, 0)),  # 2
    Part.LineSegment(Vector(-32.544699, 12, 0), Vector(-24.675575, -12, 0)),  # 3
    Part.LineSegment(Vector(-24.675575, -12, 0), Vector(-8, -12, 0)),  # 4
    Part.ArcOfCircle(Part.Circle(Vector(-8, -10, 0), Vector(0, 0, 1), 2), math.radians(-90), math.radians(0)),  # 5
    Part.LineSegment(Vector(-6, -10, 0), Vector(-6, 10, 0)),  # 6
    Part.ArcOfCircle(Part.Circle(Vector(-8, 10, 0), Vector(0, 0, 1), 2), math.radians(0), math.radians(90)),  # 7
    Part.LineSegment(Vector(-8, 12, 0), Vector(-19.91613, 12, 0)),  # 8
    Part.ArcOfCircle(Part.Circle(Vector(8, 10, 0), Vector(0, 0, 1), 2), math.radians(90), math.radians(180)),  # 9
    Part.LineSegment(Vector(6, 10, 0), Vector(6, -10, 0)),  # 10
    Part.ArcOfCircle(Part.Circle(Vector(8, -10, 0), Vector(0, 0, 1), 2), math.radians(-180), math.radians(-90)),  # 11
    Part.LineSegment(Vector(8, -12, 0), Vector(24.675575, -12, 0)),  # 12
    Part.LineSegment(Vector(24.675575, -12, 0), Vector(32.544699, 12, 0)),  # 13
    Part.LineSegment(Vector(32.544699, 12, 0), Vector(75, 141.484192, 0)),  # 14
    Part.LineSegment(Vector(75, 141.484192, 0), Vector(75, 180, 0)),  # 15
    Part.LineSegment(Vector(75, 180, 0), Vector(19.91613, 12, 0)),  # 16
    Part.LineSegment(Vector(19.91613, 12, 0), Vector(8, 12, 0)),  # 17
], False)
sketch10.addConstraint([
    Sketcher.Constraint("Coincident", 0, 2, 1, 1),
    Sketcher.Constraint("Coincident", 1, 2, 2, 1),
    Sketcher.Constraint("Coincident", 2, 2, 3, 1),
    Sketcher.Constraint("Coincident", 3, 2, 4, 1),
    Sketcher.Constraint("Tangent", 4, 2, 5, 1),
    Sketcher.Constraint("Tangent", 5, 2, 6, 1),
    Sketcher.Constraint("Tangent", 6, 2, 7, 1),
    Sketcher.Constraint("Tangent", 7, 2, 8, 1),
    Sketcher.Constraint("Coincident", 8, 2, 0, 1),
    Sketcher.Constraint("Tangent", 9, 2, 10, 1),
    Sketcher.Constraint("Tangent", 10, 2, 11, 1),
    Sketcher.Constraint("Tangent", 11, 2, 12, 1),
    Sketcher.Constraint("Coincident", 12, 2, 13, 1),
    Sketcher.Constraint("Coincident", 13, 2, 14, 1),
    Sketcher.Constraint("Coincident", 14, 2, 15, 1),
    Sketcher.Constraint("Coincident", 15, 2, 16, 1),
    Sketcher.Constraint("Coincident", 16, 2, 17, 1),
    Sketcher.Constraint("Tangent", 17, 2, 9, 1),
    Sketcher.Constraint("Vertical", 1),
    Sketcher.Constraint("Horizontal", 4),
    Sketcher.Constraint("Vertical", 6),
    Sketcher.Constraint("Horizontal", 8),
    Sketcher.Constraint("Vertical", 10),
    Sketcher.Constraint("Horizontal", 12),
    Sketcher.Constraint("Vertical", 15),
    Sketcher.Constraint("Horizontal", 17),
    Sketcher.Constraint("Equal", 5, 7),
    Sketcher.Constraint("Equal", 7, 9),
    Sketcher.Constraint("Equal", 9, 11),
    Sketcher.Constraint("Symmetric", 5, 3, 9, 3, -1, 1),
    Sketcher.Constraint("Symmetric", 3, 2, 12, 2, -2),
    Sketcher.Constraint("Symmetric", 2, 2, 13, 2, -2),
    Sketcher.Constraint("Symmetric", 1, 2, 14, 2, -2),
    Sketcher.Constraint("Symmetric", 8, 2, 16, 2, -2),
    Sketcher.Constraint("Parallel", 0, 2),
    Sketcher.Constraint("Parallel", 2, 3),
    Sketcher.Constraint("Parallel", 14, 16),
    Sketcher.Constraint("Horizontal", 2, 2, 7, 2),
    Sketcher.Constraint("Radius", 5, Q("2 mm")),
    Sketcher.Constraint("DistanceY", 6, 1, 6, 2, Q("20 mm")),
    Sketcher.Constraint("DistanceX", 5, 3, -1, 1, Q("8 mm")),
    Sketcher.Constraint("DistanceX", 0, 2, -1, 1, Q("75 mm")),
    Sketcher.Constraint("DistanceY", -1, 1, 0, 2, Q("180 mm")),
    Sketcher.Constraint("DistanceX", 8, 2, 8, 1, Q("11.91613 mm")),
    Sketcher.Constraint("DistanceX", 2, 2, -1, 1, Q("32.544699 mm")),
])
pad4 = body.newObject("PartDesign::Pad", "Pad003")
pad4.Profile = sketch10
pad4.Length = 5
doc.recompute()

fillet7 = body.newObject("PartDesign::Fillet", "Fillet006")
fillet7.Base = (pad4, edges_at(pad4, [
    (-32.545, 12, 2.5),
    (-24.676, -12, 2.5),
    (-35.168, 20, 2.5),
    (-75, 141.484, 2.5),
    (35.168, 20, 2.5),
    (32.545, 12, 2.5),
    (75, 141.484, 2.5),
    (24.676, -12, 2.5),
]))
fillet7.Radius = 3

# Sketch on XY plane
sketch11 = body.newObject("Sketcher::SketchObject", "Sketch010")
sketch11.AttachmentSupport = (doc.getObject("XY_Plane"), [""])
sketch11.MapMode = "FlatFace"
sketch11.AttachmentOffset = App.Placement(Vector(0, 0, 5), App.Rotation())
sketch11.addGeometry([
    Part.LineSegment(Vector(19.91613, 12, 0), Vector(-19.91613, 12, 0)),
    Part.LineSegment(Vector(-19.91613, 12, 0), Vector(-9.920996, -18.484105, 0)),
    Part.ArcOfCircle(Part.Circle(Vector(0, -68, 0), Vector(0, 0, 1), 50.5), math.radians(78.670246), math.radians(101.329754)),
    Part.LineSegment(Vector(9.920996, -18.484105, 0), Vector(19.91613, 12, 0)),
], False)
sketch11.addConstraint([
    Sketcher.Constraint("Coincident", 0, 2, 1, 1),
    Sketcher.Constraint("Coincident", 1, 2, 2, 2),
    Sketcher.Constraint("Coincident", 2, 1, 3, 1),
    Sketcher.Constraint("Coincident", 3, 2, 0, 1),
    Sketcher.Constraint("Horizontal", 0),
    Sketcher.Constraint("Symmetric", 1, 2, 2, 1, -2),
    Sketcher.Constraint("Equal", 1, 3),
    Sketcher.Constraint("Radius", 2, Q("50.5 mm")),
    Sketcher.Constraint("DistanceY", 2, 3, -1, 1, Q("68 mm")),
    Sketcher.Constraint("DistanceY", -1, 1, 0, 2, Q("12 mm")),
    Sketcher.Constraint("DistanceX", 0, 2, 0, 1, Q("39.832259 mm")),
    Sketcher.Constraint("DistanceX", 1, 2, 2, 1, Q("19.841991 mm")),
])
pocket7 = body.newObject("PartDesign::Pocket", "Pocket006")
pocket7.Profile = sketch11
pocket7.Length = 10
doc.recompute()

fillet8 = body.newObject("PartDesign::Fillet", "Fillet007")
fillet8.Base = (pocket7, edges_at(pocket7, [
    (-19.916, 12, 2.5),
    (19.916, 12, 2.5),
    (9.921, -18.484, 2.5),
    (-9.921, -18.484, 2.5),
]))
fillet8.Radius = 3
doc.recompute()

fillet9 = body.newObject("PartDesign::Fillet", "Fillet008")
fillet9.Base = (fillet8, edges_at(fillet8, [(-22.539, 20, 2.5), (22.539, 20, 2.5)]))
fillet9.Radius = 8
doc.recompute()

fillet10 = body.newObject("PartDesign::Fillet", "Fillet009")
fillet10.Base = (fillet9, edges_at(fillet9, [
    (-105, 180, 2.5),
    (-75, 180, 2.5),
    (75, 180, 2.5),
    (105, 180, 2.5),
    (105, -20, 2.5),
    (-105, -20, 2.5),
]))
fillet10.Radius = 5

doc.recompute()
